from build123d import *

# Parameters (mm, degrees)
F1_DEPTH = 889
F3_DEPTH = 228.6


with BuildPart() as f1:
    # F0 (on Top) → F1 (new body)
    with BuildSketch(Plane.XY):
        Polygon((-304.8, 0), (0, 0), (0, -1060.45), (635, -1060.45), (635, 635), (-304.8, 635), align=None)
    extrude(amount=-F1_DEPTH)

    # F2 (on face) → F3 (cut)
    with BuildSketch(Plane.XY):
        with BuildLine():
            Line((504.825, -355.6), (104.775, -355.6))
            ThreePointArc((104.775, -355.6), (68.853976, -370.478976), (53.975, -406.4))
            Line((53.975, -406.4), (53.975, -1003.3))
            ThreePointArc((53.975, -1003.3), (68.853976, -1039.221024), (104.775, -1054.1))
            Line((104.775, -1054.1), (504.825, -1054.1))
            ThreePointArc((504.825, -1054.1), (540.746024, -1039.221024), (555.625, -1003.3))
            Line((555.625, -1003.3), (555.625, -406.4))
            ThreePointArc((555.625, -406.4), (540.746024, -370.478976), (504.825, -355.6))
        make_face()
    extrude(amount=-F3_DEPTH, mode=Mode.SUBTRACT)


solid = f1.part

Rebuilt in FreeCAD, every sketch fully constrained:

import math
import FreeCAD as App
import Part
import Sketcher

V = App.Vector
Q = App.Units.Quantity


def add_polygon(sketch, points):
    """Adds a closed chain of lines whose ends are joined by coincident constraints."""
    first, n = sketch.GeometryCount, len(points)
    for a, b in zip(points, points[1:] + points[:1]):
        sketch.addGeometry(Part.LineSegment(App.Vector(*a, 0), App.Vector(*b, 0)), False)
    for i in range(n):
        sketch.addConstraint(Sketcher.Constraint("Coincident", first + i, 2, first + (i + 1) % n, 1))

doc = App.newDocument("Part")
params = doc.addObject("Spreadsheet::Sheet", "Params")
for row, (alias, value) in enumerate([
    ("sketch1_width", "12 in"),
    ("sketch1_width2", "25 in"),
    ("sketch1_height", "41.75 in"),
    ("pad1_length", "35 in"),
    ("sketch2_radius", "2.0000001 in"),
    ("sketch2_height", "23.5 in"),
    ("sketch2_width", "15.75 in"),
    ("pocket1_length", "9 in"),
], start=1):
    params.set(f"A{row}", alias)
    params.set(f"B{row}", "=" + value)
    params.setAlias(f"B{row}", alias)

body = doc.addObject("PartDesign::Body", "Body")

# Sketch on XY plane
sketch1 = doc.addObject("Sketcher::SketchObject", "Sketch")
body.addObject(sketch1)
sketch1.AttachmentSupport = (doc.XY_Plane, [""])
sketch1.MapMode = "FlatFace"
add_polygon(sketch1, [(-305, 0), (0, 0), (0, -1060), (635, -1060), (635, 635), (-305, 635)])  # lines 0-5
sketch1.addConstraint([
    Sketcher.Constraint("Horizontal", 0),
    Sketcher.Constraint("Vertical", 1),
    Sketcher.Constraint("Horizontal", 2),
    Sketcher.Constraint("Vertical", 3),
    Sketcher.Constraint("Horizontal", 4),
    Sketcher.Constraint("Vertical", 5),
    Sketcher.Constraint("Coincident", 0, 2, -1, 1),
    Sketcher.Constraint("Equal", 2, 5),
    Sketcher.Constraint("DistanceX", 0, 1, 0, 2, Q("12 in")),
    Sketcher.Constraint("DistanceX", 2, 1, 2, 2, Q("25 in")),
    Sketcher.Constraint("DistanceY", 1, 2, 1, 1, Q("41.75 in")),
])
sketch1.setExpression("Constraints[14]", "Params.sketch1_width")
sketch1.setExpression("Constraints[15]", "Params.sketch1_width2")
sketch1.setExpression("Constraints[16]", "Params.sketch1_height")
pad1 = doc.addObject("PartDesign::Pad", "Pad")
body.addObject(pad1)
pad1.Profile = sketch1
pad1.setExpression("Length", "Params.pad1_length")
pad1.Reversed = True

# Sketch on XY plane
sketch2 = doc.addObject("Sketcher::SketchObject", "Sketch001")
body.addObject(sketch2)
sketch2.AttachmentSupport = (doc.XY_Plane, [""])
sketch2.MapMode = "FlatFace"
sketch2.addGeometry([
    Part.LineSegment(V(505, -356, 0), V(105, -356, 0)),  # 0
    Part.ArcOfCircle(Part.Circle(V(105, -406, 0), V(0, 0, 1), 51), math.radians(90), math.radians(180)),  # 1
    Part.LineSegment(V(54, -406, 0), V(54, -1003, 0)),  # 2
    Part.ArcOfCircle(Part.Circle(V(105, -1003, 0), V(0, 0, 1), 51), math.radians(-180), math.radians(-90)),  # 3
    Part.LineSegment(V(105, -1054, 0), V(505, -1054, 0)),  # 4
    Part.ArcOfCircle(Part.Circle(V(505, -1003, 0), V(0, 0, 1), 51), math.radians(-90), math.radians(0)),  # 5
    Part.LineSegment(V(556, -1003, 0), V(556, -406, 0)),  # 6
    Part.ArcOfCircle(Part.Circle(V(505, -406, 0), V(0, 0, 1), 51), math.radians(0), math.radians(90)),  # 7
], False)
sketch2.addConstraint([
    Sketcher.Constraint("Tangent", 0, 2, 1, 1),
    Sketcher.Constraint("Tangent", 1, 2, 2, 1),
    Sketcher.Constraint("Tangent", 2, 2, 3, 1),
    Sketcher.Constraint("Tangent", 3, 2, 4, 1),
    Sketcher.Constraint("Tangent", 4, 2, 5, 1),
    Sketcher.Constraint("Tangent", 5, 2, 6, 1),
    Sketcher.Constraint("Tangent", 6, 2, 7, 1),
    Sketcher.Constraint("Tangent", 7, 2, 0, 1),
    Sketcher.Constraint("Horizontal", 0),
    Sketcher.Constraint("Vertical", 2),
    Sketcher.Constraint("Horizontal", 4),
    Sketcher.Constraint("Vertical", 6),
    Sketcher.Constraint("Equal", 1, 3),
    Sketcher.Constraint("Equal", 3, 5),
    Sketcher.Constraint("Equal", 5, 7),
    Sketcher.Constraint("Radius", 1, Q("2.0000001 in")),
    Sketcher.Constraint("DistanceY", 2, 2, 2, 1, Q("23.5 in")),
    Sketcher.Constraint("DistanceY", 1, 3, -1, 1, Q("16.0000001 in")),
    Sketcher.Constraint("DistanceX", 0, 2, 0, 1, Q("15.75 in")),
    Sketcher.Constraint("DistanceX", -1, 1, 1, 3, Q("4.1250001 in")),
])
sketch2.setExpression("Constraints[15]", "Params.sketch2_radius")
sketch2.setExpression("Constraints[16]", "Params.sketch2_height")
sketch2.setExpression("Constraints[18]", "Params.sketch2_width")
pocket1 = doc.addObject("PartDesign::Pocket", "Pocket")
body.addObject(pocket1)
pocket1.Profile = sketch2
pocket1.setExpression("Length", "Params.pocket1_length")

doc.recompute()
